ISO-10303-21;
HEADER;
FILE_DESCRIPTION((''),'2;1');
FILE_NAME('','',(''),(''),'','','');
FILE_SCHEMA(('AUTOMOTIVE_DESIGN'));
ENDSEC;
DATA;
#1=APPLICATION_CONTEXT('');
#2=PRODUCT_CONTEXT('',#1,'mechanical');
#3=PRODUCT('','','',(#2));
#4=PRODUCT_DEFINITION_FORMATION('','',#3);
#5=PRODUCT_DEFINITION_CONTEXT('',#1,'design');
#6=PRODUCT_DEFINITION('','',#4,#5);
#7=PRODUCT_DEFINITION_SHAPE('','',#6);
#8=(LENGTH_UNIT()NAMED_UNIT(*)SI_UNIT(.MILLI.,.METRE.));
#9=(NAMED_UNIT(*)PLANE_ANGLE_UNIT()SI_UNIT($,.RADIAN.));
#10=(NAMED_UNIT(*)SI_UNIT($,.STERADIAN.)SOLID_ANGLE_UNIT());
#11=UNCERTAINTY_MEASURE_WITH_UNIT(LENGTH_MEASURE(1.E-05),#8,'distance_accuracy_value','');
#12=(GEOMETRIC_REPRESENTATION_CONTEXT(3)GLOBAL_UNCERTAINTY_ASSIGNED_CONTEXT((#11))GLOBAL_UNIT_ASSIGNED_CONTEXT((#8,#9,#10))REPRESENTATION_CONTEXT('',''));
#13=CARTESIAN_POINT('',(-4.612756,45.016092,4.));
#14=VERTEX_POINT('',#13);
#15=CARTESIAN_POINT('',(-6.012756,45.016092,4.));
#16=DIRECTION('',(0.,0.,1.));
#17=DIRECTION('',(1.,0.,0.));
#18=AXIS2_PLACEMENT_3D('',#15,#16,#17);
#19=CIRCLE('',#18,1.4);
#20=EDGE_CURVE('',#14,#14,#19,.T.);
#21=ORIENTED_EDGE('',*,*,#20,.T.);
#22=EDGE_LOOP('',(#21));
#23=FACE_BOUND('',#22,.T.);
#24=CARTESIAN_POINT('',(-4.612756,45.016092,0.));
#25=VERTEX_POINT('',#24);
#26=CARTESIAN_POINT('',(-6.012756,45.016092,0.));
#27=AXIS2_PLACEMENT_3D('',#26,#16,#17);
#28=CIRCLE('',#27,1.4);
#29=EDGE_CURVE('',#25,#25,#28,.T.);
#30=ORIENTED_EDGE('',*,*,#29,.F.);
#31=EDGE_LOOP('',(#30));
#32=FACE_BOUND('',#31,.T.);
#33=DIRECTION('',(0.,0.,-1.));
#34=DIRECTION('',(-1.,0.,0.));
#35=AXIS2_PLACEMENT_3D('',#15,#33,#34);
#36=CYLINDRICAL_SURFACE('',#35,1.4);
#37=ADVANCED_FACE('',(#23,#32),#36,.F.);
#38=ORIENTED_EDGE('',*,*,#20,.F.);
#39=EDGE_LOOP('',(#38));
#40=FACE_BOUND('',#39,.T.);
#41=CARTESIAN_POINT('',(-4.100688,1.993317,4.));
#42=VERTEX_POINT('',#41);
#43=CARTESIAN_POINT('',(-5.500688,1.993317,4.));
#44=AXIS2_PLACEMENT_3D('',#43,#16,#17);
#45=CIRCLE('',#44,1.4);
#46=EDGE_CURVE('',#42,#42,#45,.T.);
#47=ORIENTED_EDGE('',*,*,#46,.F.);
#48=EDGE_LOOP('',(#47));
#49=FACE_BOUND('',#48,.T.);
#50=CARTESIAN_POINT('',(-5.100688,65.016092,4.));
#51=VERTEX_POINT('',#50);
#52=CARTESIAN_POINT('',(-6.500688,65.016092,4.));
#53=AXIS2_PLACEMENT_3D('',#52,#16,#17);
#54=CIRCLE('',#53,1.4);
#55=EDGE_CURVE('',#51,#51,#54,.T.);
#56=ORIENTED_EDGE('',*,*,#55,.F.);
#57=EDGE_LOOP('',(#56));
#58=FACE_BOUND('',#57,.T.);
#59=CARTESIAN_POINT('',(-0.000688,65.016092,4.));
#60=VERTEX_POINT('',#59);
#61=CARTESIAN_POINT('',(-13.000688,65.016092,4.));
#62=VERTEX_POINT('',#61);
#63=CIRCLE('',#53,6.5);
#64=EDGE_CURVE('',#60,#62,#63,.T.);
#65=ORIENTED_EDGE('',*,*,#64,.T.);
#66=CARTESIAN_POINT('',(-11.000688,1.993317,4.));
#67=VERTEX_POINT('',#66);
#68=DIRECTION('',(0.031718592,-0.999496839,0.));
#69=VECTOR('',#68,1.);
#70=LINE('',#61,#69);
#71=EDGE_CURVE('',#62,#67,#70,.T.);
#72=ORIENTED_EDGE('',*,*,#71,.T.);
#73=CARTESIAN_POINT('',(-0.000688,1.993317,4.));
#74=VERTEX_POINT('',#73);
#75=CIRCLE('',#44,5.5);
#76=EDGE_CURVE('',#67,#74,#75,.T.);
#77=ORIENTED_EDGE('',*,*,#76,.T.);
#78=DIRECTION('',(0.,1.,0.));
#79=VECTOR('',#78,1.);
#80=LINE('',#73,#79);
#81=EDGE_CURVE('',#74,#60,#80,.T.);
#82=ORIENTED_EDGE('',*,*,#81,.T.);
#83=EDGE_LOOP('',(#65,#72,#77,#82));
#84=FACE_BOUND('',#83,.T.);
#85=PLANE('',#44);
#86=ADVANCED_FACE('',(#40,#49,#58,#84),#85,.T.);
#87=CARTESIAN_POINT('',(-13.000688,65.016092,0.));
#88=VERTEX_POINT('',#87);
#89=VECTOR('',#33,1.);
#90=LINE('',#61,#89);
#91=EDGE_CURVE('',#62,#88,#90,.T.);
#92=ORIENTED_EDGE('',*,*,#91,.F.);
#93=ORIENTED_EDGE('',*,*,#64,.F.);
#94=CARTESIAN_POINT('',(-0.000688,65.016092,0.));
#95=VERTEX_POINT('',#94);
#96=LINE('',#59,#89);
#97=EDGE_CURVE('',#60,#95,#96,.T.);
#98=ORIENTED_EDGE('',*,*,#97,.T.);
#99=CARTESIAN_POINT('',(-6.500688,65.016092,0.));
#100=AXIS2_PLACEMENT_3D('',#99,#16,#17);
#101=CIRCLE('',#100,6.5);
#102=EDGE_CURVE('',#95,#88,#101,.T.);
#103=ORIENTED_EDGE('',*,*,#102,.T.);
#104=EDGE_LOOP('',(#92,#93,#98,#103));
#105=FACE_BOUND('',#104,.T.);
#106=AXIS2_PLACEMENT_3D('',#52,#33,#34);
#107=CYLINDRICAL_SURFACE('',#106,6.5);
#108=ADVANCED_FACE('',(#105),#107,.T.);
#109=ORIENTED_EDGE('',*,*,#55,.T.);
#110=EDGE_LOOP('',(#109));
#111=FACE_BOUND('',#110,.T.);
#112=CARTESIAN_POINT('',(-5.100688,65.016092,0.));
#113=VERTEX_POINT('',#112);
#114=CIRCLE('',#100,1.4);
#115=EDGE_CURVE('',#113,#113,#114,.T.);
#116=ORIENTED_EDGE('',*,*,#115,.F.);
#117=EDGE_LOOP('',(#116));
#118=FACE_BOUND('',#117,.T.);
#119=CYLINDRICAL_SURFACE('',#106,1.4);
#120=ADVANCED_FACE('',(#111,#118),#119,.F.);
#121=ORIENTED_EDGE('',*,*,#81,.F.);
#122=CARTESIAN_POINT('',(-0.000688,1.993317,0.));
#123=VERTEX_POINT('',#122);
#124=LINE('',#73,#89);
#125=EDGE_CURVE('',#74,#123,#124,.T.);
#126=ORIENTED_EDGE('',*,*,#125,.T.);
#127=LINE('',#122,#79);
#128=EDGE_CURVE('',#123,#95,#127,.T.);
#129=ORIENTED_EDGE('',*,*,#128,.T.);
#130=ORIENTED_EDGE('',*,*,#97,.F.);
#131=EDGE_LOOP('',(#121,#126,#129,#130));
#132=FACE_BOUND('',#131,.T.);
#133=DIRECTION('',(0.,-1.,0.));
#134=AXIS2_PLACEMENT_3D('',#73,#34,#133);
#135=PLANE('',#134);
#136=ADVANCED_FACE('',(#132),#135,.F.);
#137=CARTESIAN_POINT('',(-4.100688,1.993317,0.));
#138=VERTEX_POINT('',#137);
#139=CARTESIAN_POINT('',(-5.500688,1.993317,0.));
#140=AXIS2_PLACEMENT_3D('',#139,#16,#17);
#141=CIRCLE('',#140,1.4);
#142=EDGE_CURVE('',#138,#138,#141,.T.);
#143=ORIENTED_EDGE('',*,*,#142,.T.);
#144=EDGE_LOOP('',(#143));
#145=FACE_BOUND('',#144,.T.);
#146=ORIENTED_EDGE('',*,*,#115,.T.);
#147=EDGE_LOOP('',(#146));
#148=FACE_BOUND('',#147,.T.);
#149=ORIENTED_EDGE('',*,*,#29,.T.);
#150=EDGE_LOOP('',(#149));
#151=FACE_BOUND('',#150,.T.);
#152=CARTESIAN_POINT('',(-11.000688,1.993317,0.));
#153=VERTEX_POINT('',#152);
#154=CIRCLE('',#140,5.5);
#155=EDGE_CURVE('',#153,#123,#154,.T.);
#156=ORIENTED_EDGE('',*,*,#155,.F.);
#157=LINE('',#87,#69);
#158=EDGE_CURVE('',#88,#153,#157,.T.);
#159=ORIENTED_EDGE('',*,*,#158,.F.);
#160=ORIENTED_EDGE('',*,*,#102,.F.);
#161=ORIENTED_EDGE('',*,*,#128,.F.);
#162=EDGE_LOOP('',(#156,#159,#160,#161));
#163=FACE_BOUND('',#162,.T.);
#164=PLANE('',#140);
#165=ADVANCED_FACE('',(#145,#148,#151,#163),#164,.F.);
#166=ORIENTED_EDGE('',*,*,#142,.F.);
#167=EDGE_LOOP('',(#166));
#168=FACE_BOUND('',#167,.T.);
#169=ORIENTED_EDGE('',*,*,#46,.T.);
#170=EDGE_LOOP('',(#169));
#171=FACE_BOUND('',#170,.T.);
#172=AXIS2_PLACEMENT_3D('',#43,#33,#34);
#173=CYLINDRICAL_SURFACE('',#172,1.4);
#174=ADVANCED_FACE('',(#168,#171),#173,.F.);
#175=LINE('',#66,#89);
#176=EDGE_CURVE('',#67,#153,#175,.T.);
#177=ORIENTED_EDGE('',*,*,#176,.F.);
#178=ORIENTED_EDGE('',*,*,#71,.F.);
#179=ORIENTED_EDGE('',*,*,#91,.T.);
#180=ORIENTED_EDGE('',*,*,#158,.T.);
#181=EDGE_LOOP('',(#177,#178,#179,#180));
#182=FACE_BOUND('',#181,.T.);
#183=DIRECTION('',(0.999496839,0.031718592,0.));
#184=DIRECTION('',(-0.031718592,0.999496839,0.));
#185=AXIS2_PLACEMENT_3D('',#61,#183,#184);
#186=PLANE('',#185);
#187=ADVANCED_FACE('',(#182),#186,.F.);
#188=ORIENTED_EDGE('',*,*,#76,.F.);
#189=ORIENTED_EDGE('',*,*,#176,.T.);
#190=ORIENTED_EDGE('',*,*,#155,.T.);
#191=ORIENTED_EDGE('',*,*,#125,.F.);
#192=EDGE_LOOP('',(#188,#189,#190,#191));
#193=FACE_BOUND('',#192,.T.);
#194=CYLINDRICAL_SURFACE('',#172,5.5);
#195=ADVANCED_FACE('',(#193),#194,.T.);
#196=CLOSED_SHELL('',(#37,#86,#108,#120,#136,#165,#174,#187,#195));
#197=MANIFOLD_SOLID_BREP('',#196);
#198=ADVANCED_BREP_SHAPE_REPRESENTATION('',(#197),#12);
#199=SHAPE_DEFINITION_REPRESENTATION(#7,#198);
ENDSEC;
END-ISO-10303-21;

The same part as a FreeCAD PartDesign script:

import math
import FreeCAD as App
import Part
import Sketcher
Q = App.Units.Quantity

doc = App.newDocument("Part")
body = doc.addObject("PartDesign::Body", "Body")

# Sketch on XY plane
sketch1 = body.newObject("Sketcher::SketchObject", "Sketch")
sketch1.AttachmentSupport = (doc.getObject("XY_Plane"), [""])
sketch1.MapMode = "FlatFace"
sketch1.addGeometry([
    Part.LineSegment(App.Vector(0, 2, 0), App.Vector(0, 65, 0)),  # 0
    Part.ArcOfCircle(Part.Circle(App.Vector(-6.5, 65, 0), App.Vector(0, 0, 1), 6.5), math.radians(0), math.radians(180)),  # 1
    Part.LineSegment(App.Vector(-13, 65, 0), App.Vector(-11, 2, 0)),  # 2
    Part.ArcOfCircle(Part.Circle(App.Vector(-5.5, 2, 0), App.Vector(0, 0, 1), 5.5), math.radians(180), math.radians(360)),  # 3
    Part.Circle(App.Vector(-5.5, 2, 0), App.Vector(0, 0, 1), 1.4),  # 4
    Part.Circle(App.Vector(-6, 45, 0), App.Vector(0, 0, 1), 1.4),  # 5
    Part.Circle(App.Vector(-6.5, 65, 0), App.Vector(0, 0, 1), 1.4),  # 6
], False)
sketch1.addConstraint([
    Sketcher.Constraint("Tangent", 0, 2, 1, 1),
    Sketcher.Constraint("Coincident", 1, 2, 2, 1),
    Sketcher.Constraint("Coincident", 2, 2, 3, 1),
    Sketcher.Constraint("Tangent", 3, 2, 0, 1),
    Sketcher.Constraint("Vertical", 0),
    Sketcher.Constraint("Coincident", 4, 3, 3, 3),
    Sketcher.Constraint("Coincident", 6, 3, 1, 3),
    Sketcher.Constraint("Equal", 4, 5),
    Sketcher.Constraint("Equal", 5, 6),
    Sketcher.Constraint("Horizontal", 0, 2, 1, 2),
    Sketcher.Constraint("Horizontal", 4, 3, 2, 2),
    Sketcher.Constraint("Diameter", 4, Q("2.8 mm")),
    Sketcher.Constraint("Radius", 1, Q("6.5 mm")),
    Sketcher.Constraint("Radius", 3, Q("5.5 mm")),
    Sketcher.Constraint("DistanceY", 5, 3, 1, 3, Q("20 mm")),
    Sketcher.Constraint("Distance", 2, Q("63.054501 mm")),
    Sketcher.Constraint("DistanceX", 1, 3, -1, 1, Q("6.500688 mm")),
    Sketcher.Constraint("DistanceY", -1, 1, 1, 3, Q("65.016092 mm")),
    Sketcher.Constraint("DistanceX", 5, 3, -1, 1, Q("6.012756 mm")),
])
pad1 = body.newObject("PartDesign::Pad", "Pad")
pad1.Profile = sketch1
pad1.Length = 4

doc.recompute()
